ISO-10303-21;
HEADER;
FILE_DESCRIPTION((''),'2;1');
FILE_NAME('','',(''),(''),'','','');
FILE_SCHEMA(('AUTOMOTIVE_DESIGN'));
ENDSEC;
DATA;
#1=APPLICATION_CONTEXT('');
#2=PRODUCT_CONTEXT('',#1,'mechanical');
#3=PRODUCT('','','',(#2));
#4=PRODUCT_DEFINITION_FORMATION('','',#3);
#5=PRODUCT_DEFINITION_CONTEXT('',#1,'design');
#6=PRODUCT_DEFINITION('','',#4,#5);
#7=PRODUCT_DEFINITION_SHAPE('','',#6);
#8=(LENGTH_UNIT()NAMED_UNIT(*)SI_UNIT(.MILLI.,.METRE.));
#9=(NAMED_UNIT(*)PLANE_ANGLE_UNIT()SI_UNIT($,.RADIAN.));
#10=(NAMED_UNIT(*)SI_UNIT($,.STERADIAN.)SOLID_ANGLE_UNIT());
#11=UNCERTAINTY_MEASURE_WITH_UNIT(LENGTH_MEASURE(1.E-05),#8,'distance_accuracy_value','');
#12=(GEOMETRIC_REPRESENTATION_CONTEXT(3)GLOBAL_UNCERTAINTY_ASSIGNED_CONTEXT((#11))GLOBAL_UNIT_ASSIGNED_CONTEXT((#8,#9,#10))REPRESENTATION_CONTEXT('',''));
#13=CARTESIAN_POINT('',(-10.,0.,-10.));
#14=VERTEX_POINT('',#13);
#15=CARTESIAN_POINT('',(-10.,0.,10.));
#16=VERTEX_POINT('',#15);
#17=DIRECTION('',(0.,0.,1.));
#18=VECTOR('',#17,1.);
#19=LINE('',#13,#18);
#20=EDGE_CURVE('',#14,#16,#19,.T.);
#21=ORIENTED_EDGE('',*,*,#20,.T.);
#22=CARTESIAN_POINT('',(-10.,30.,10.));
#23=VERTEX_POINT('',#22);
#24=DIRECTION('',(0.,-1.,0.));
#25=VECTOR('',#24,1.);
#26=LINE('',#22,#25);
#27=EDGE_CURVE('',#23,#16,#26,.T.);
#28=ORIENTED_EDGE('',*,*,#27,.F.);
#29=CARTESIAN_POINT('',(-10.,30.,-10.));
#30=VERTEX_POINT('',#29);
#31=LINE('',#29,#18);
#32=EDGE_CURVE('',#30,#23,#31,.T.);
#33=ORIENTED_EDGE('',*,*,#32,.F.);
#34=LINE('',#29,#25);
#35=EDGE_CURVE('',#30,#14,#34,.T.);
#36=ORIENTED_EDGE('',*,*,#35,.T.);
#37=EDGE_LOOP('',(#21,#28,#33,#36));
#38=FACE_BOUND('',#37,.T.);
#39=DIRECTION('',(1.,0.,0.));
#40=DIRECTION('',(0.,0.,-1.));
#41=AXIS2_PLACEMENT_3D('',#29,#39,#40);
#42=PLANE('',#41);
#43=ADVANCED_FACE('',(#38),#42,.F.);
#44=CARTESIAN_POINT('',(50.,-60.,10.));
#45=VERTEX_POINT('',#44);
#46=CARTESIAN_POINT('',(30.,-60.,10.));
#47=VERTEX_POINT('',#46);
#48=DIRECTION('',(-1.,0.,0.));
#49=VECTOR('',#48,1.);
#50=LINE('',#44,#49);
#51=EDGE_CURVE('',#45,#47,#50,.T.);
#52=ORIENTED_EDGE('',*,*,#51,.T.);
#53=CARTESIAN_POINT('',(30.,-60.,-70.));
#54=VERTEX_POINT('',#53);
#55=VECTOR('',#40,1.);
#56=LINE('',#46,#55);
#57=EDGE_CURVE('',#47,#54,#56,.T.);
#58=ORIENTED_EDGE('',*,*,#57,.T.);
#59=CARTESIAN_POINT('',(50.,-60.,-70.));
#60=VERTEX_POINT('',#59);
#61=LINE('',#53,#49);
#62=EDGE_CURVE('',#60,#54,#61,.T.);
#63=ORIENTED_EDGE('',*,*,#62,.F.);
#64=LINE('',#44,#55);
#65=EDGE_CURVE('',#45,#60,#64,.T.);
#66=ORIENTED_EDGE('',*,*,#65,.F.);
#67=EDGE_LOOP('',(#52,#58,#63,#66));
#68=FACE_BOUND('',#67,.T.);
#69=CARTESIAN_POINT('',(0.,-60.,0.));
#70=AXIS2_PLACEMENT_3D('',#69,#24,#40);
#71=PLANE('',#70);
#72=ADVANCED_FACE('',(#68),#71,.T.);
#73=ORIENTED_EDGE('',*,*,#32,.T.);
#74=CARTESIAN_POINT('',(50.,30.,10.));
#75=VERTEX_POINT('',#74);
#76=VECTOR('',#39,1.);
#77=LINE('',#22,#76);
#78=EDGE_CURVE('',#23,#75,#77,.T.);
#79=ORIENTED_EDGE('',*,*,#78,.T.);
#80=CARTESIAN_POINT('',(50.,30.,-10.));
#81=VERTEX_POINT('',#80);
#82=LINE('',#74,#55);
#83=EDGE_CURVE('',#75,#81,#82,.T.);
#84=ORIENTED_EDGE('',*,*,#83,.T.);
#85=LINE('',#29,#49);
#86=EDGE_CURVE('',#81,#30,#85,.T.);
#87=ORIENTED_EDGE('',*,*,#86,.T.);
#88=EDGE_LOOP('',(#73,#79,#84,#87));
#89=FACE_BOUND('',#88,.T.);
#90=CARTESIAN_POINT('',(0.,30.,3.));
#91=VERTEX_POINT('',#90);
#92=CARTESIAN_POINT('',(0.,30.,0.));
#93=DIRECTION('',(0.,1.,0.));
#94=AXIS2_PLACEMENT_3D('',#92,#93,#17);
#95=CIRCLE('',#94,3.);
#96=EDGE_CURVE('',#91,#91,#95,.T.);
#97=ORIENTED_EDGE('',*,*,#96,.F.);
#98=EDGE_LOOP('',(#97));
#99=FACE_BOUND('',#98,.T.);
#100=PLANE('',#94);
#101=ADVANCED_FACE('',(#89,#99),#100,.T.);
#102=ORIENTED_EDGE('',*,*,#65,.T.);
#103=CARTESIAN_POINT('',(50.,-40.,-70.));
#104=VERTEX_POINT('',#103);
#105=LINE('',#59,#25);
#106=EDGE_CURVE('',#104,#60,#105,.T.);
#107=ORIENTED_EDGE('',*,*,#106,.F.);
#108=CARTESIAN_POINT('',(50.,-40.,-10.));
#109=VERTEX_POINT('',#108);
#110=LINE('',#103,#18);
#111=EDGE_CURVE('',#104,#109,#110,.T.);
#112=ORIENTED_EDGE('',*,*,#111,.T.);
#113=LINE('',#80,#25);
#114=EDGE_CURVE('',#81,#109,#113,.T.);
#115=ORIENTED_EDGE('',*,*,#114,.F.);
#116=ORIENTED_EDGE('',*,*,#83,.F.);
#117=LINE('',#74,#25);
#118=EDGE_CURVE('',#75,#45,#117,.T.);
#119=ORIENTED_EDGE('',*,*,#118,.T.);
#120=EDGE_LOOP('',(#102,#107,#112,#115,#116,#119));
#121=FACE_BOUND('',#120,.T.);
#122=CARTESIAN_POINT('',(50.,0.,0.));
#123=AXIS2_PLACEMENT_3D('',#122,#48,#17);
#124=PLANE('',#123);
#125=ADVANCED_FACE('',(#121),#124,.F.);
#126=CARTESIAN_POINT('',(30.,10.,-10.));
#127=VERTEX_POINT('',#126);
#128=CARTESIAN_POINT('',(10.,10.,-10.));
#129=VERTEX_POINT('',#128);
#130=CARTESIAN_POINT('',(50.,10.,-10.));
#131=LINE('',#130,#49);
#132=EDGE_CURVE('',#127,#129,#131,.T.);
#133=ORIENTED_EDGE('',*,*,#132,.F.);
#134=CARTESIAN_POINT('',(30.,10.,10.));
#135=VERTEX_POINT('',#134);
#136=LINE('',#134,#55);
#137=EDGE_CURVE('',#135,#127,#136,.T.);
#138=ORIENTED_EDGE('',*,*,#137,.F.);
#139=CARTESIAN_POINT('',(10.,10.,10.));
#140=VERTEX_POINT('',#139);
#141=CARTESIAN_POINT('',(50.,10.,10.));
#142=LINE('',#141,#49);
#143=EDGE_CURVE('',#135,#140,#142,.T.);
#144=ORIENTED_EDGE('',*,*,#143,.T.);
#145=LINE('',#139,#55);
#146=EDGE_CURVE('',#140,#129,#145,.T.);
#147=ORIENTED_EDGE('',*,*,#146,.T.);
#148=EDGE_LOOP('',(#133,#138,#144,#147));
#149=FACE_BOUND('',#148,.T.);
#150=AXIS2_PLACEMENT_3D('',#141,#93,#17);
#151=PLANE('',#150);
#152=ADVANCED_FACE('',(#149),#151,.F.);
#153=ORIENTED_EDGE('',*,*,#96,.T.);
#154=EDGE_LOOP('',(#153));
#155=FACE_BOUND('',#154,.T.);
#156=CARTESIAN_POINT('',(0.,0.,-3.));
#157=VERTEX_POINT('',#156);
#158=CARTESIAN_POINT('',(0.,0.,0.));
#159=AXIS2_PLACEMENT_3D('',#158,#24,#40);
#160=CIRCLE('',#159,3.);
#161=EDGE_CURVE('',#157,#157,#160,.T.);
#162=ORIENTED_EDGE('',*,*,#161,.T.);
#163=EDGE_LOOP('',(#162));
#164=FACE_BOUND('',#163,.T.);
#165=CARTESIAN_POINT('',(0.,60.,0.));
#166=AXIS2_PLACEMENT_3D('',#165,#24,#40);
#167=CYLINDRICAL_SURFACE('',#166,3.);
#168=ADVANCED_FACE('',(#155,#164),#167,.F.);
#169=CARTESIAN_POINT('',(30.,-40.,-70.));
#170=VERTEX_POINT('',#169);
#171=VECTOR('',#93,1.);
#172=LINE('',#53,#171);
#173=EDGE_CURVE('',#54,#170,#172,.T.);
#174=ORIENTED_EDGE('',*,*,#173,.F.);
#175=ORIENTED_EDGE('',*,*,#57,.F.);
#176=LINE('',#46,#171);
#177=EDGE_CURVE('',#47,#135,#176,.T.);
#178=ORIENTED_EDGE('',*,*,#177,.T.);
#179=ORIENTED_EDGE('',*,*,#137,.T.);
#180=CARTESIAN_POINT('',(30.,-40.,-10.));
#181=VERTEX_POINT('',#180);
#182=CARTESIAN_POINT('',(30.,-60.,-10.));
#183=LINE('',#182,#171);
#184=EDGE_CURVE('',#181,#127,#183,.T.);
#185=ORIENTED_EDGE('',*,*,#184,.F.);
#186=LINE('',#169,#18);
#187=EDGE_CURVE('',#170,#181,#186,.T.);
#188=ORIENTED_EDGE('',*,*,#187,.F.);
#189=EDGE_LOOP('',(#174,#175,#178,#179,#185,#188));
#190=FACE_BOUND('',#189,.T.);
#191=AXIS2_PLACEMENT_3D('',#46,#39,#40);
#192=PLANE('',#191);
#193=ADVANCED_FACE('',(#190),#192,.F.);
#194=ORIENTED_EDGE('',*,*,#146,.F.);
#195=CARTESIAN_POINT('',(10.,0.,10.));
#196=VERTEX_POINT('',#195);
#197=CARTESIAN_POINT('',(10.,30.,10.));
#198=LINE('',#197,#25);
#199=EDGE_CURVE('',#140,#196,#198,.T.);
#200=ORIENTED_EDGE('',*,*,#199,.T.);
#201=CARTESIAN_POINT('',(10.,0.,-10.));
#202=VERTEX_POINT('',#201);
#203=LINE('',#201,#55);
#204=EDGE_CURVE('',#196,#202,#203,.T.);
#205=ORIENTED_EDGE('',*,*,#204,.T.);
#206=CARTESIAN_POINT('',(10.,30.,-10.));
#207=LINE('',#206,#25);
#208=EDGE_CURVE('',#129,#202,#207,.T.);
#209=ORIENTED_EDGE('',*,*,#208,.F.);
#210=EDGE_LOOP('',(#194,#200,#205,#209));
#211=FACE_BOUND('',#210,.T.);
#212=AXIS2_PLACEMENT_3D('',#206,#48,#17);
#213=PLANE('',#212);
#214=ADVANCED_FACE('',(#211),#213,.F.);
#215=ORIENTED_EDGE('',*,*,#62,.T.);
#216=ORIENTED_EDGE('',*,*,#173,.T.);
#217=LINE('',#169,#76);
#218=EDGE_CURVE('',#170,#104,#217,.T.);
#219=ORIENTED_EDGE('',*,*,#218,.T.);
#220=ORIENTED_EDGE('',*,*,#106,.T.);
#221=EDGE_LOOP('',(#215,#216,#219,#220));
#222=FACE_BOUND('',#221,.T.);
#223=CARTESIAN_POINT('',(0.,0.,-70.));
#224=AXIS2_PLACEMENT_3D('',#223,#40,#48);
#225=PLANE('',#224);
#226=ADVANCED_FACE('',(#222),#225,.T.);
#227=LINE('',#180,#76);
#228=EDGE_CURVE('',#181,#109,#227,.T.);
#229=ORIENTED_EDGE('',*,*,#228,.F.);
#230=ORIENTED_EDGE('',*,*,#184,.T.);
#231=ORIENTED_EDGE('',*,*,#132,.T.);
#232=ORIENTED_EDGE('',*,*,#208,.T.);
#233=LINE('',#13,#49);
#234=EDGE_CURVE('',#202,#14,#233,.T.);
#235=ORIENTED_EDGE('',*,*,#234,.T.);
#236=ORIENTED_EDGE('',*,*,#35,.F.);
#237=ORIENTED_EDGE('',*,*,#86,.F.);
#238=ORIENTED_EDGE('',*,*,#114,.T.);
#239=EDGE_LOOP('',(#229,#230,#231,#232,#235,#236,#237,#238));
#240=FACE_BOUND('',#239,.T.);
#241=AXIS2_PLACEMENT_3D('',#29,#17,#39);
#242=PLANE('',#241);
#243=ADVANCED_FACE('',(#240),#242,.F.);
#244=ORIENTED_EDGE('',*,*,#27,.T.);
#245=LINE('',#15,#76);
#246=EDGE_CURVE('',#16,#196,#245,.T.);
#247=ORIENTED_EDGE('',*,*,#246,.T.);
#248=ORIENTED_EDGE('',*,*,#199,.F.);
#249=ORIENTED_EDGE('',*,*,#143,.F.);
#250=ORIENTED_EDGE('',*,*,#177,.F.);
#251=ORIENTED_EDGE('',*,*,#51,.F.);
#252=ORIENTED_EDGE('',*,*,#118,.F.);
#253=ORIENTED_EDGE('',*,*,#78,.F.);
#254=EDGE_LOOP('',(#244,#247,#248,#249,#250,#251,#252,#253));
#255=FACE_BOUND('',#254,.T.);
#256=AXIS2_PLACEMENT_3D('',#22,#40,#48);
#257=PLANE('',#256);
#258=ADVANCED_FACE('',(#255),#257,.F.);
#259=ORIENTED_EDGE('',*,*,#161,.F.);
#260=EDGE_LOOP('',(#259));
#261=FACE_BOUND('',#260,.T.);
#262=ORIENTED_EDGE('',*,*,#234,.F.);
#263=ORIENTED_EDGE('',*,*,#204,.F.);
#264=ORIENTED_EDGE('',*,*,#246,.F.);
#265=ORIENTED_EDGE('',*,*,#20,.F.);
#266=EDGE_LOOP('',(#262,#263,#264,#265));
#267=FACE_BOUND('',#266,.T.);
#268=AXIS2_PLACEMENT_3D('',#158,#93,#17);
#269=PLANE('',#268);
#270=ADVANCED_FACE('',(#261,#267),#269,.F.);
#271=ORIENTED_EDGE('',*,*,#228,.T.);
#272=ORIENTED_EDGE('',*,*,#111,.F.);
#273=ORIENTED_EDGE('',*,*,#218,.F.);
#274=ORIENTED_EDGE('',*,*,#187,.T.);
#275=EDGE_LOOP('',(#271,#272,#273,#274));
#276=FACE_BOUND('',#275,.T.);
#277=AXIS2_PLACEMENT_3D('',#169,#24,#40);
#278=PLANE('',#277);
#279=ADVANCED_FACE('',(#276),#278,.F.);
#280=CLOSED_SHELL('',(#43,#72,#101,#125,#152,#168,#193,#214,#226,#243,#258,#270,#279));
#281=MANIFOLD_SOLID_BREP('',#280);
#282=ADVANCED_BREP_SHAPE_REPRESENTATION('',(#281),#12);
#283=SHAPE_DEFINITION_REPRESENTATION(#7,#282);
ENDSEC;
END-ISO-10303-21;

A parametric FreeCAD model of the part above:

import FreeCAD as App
import Part
import Sketcher

V = App.Vector


def add_polygon(sketch, points):
    """Adds a closed chain of lines whose ends are joined by coincident constraints."""
    first, n = sketch.GeometryCount, len(points)
    for a, b in zip(points, points[1:] + points[:1]):
        sketch.addGeometry(Part.LineSegment(App.Vector(*a, 0), App.Vector(*b, 0)), False)
    for i in range(n):
        sketch.addConstraint(Sketcher.Constraint("Coincident", first + i, 2, first + (i + 1) % n, 1))

doc = App.newDocument("Part")
body = doc.addObject("PartDesign::Body", "Body")

# Sketch on XZ plane
sketch1 = doc.addObject("Sketcher::SketchObject", "Sketch")
body.addObject(sketch1)
sketch1.AttachmentSupport = (doc.XZ_Plane, [""])
sketch1.MapMode = "FlatFace"
add_polygon(sketch1, [(-10, -10), (-10, 10), (10, 10), (10, -10)])  # lines 0-3
sketch1.addConstraint([
    Sketcher.Constraint("Vertical", 0),
    Sketcher.Constraint("Horizontal", 1),
    Sketcher.Constraint("Vertical", 2),
    Sketcher.Constraint("Horizontal", 3),
    Sketcher.Constraint("Symmetric", 0, 2, 2, 2, -1, 1),
    Sketcher.Constraint("Equal", 3, 0),
    Sketcher.Constraint("DistanceX", 1, 1, 1, 2, 20.0),
])
pad1 = doc.addObject("PartDesign::Pad", "Pad")
body.addObject(pad1)
pad1.Profile = sketch1
pad1.Length = 30
pad1.Reversed = True

# Sketch on YZ plane
sketch2 = doc.addObject("Sketcher::SketchObject", "Sketch001")
body.addObject(sketch2)
sketch2.AttachmentSupport = (doc.YZ_Plane, [""])
sketch2.MapMode = "FlatFace"
sketch2.AttachmentOffset = App.Placement(V(0, 0, 10), App.Rotation())
add_polygon(sketch2, [(30, 10), (10, 10), (10, -10), (30, -10)])  # lines 0-3
sketch2.addConstraint([
    Sketcher.Constraint("Horizontal", 0),
    Sketcher.Constraint("Vertical", 1),
    Sketcher.Constraint("Horizontal", 2),
    Sketcher.Constraint("Vertical", 3),
    Sketcher.Constraint("Equal", 2, 1),
    Sketcher.Constraint("DistanceX", 0, 2, 0, 1, 20.0),
    Sketcher.Constraint("DistanceX", -1, 1, 0, 2, 10.0),
    Sketcher.Constraint("DistanceY", -1, 1, 0, 2, 10.0),
])
pad2 = doc.addObject("PartDesign::Pad", "Pad001")
body.addObject(pad2)
pad2.Profile = sketch2
pad2.Length = 40

# Sketch on XZ plane
sketch3 = doc.addObject("Sketcher::SketchObject", "Sketch002")
body.addObject(sketch3)
sketch3.AttachmentSupport = (doc.XZ_Plane, [""])
sketch3.MapMode = "FlatFace"
sketch3.AttachmentOffset = App.Placement(V(0, 0, -10), App.Rotation())
add_polygon(sketch3, [(30, 10), (30, -10), (50, -10), (50, 10)])  # lines 0-3
sketch3.addConstraint([
    Sketcher.Constraint("Vertical", 0),
    Sketcher.Constraint("Horizontal", 1),
    Sketcher.Constraint("Vertical", 2),
    Sketcher.Constraint("Horizontal", 3),
    Sketcher.Constraint("Equal", 3, 0),
    Sketcher.Constraint("DistanceX", 1, 1, 1, 2, 20.0),
    Sketcher.Constraint("DistanceX", -1, 1, 0, 2, 30.0),
    Sketcher.Constraint("DistanceY", 0, 2, -1, 1, 10.0),
])
pad3 = doc.addObject("PartDesign::Pad", "Pad002")
body.addObject(pad3)
pad3.Profile = sketch3
pad3.Length = 70

# Sketch on XY plane
sketch4 = doc.addObject("Sketcher::SketchObject", "Sketch003")
body.addObject(sketch4)
sketch4.AttachmentSupport = (doc.XY_Plane, [""])
sketch4.MapMode = "FlatFace"
sketch4.AttachmentOffset = App.Placement(V(0, 0, -10), App.Rotation())
add_polygon(sketch4, [(50, -40), (50, -60), (30, -60), (30, -40)])  # lines 0-3
sketch4.addConstraint([
    Sketcher.Constraint("Vertical", 0),
    Sketcher.Constraint("Horizontal", 1),
    Sketcher.Constraint("Vertical", 2),
    Sketcher.Constraint("Horizontal", 3),
    Sketcher.Constraint("Equal", 3, 0),
    Sketcher.Constraint("DistanceX", 1, 2, 1, 1, 20.0),
    Sketcher.Constraint("DistanceX", -1, 1, 0, 2, 50.0),
    Sketcher.Constraint("DistanceY", 0, 2, -1, 1, 60.0),
])
pad4 = doc.addObject("PartDesign::Pad", "Pad003")
body.addObject(pad4)
pad4.Profile = sketch4
pad4.Length = 60
pad4.Reversed = True

# Sketch on XZ plane
sketch5 = doc.addObject("Sketcher::SketchObject", "Sketch004")
body.addObject(sketch5)
sketch5.AttachmentSupport = (doc.XZ_Plane, [""])
sketch5.MapMode = "FlatFace"
sketch5.addGeometry(Part.Circle(V(0, 0, 0), V(0, 0, 1), 3), False)
sketch5.addConstraint([
    Sketcher.Constraint("Coincident", 0, 3, -1, 1),
    Sketcher.Constraint("Diameter", 0, 6.0),
])
pocket1 = doc.addObject("PartDesign::Pocket", "Pocket")
body.addObject(pocket1)
pocket1.Profile = sketch5
pocket1.Length = 60

doc.recompute()
